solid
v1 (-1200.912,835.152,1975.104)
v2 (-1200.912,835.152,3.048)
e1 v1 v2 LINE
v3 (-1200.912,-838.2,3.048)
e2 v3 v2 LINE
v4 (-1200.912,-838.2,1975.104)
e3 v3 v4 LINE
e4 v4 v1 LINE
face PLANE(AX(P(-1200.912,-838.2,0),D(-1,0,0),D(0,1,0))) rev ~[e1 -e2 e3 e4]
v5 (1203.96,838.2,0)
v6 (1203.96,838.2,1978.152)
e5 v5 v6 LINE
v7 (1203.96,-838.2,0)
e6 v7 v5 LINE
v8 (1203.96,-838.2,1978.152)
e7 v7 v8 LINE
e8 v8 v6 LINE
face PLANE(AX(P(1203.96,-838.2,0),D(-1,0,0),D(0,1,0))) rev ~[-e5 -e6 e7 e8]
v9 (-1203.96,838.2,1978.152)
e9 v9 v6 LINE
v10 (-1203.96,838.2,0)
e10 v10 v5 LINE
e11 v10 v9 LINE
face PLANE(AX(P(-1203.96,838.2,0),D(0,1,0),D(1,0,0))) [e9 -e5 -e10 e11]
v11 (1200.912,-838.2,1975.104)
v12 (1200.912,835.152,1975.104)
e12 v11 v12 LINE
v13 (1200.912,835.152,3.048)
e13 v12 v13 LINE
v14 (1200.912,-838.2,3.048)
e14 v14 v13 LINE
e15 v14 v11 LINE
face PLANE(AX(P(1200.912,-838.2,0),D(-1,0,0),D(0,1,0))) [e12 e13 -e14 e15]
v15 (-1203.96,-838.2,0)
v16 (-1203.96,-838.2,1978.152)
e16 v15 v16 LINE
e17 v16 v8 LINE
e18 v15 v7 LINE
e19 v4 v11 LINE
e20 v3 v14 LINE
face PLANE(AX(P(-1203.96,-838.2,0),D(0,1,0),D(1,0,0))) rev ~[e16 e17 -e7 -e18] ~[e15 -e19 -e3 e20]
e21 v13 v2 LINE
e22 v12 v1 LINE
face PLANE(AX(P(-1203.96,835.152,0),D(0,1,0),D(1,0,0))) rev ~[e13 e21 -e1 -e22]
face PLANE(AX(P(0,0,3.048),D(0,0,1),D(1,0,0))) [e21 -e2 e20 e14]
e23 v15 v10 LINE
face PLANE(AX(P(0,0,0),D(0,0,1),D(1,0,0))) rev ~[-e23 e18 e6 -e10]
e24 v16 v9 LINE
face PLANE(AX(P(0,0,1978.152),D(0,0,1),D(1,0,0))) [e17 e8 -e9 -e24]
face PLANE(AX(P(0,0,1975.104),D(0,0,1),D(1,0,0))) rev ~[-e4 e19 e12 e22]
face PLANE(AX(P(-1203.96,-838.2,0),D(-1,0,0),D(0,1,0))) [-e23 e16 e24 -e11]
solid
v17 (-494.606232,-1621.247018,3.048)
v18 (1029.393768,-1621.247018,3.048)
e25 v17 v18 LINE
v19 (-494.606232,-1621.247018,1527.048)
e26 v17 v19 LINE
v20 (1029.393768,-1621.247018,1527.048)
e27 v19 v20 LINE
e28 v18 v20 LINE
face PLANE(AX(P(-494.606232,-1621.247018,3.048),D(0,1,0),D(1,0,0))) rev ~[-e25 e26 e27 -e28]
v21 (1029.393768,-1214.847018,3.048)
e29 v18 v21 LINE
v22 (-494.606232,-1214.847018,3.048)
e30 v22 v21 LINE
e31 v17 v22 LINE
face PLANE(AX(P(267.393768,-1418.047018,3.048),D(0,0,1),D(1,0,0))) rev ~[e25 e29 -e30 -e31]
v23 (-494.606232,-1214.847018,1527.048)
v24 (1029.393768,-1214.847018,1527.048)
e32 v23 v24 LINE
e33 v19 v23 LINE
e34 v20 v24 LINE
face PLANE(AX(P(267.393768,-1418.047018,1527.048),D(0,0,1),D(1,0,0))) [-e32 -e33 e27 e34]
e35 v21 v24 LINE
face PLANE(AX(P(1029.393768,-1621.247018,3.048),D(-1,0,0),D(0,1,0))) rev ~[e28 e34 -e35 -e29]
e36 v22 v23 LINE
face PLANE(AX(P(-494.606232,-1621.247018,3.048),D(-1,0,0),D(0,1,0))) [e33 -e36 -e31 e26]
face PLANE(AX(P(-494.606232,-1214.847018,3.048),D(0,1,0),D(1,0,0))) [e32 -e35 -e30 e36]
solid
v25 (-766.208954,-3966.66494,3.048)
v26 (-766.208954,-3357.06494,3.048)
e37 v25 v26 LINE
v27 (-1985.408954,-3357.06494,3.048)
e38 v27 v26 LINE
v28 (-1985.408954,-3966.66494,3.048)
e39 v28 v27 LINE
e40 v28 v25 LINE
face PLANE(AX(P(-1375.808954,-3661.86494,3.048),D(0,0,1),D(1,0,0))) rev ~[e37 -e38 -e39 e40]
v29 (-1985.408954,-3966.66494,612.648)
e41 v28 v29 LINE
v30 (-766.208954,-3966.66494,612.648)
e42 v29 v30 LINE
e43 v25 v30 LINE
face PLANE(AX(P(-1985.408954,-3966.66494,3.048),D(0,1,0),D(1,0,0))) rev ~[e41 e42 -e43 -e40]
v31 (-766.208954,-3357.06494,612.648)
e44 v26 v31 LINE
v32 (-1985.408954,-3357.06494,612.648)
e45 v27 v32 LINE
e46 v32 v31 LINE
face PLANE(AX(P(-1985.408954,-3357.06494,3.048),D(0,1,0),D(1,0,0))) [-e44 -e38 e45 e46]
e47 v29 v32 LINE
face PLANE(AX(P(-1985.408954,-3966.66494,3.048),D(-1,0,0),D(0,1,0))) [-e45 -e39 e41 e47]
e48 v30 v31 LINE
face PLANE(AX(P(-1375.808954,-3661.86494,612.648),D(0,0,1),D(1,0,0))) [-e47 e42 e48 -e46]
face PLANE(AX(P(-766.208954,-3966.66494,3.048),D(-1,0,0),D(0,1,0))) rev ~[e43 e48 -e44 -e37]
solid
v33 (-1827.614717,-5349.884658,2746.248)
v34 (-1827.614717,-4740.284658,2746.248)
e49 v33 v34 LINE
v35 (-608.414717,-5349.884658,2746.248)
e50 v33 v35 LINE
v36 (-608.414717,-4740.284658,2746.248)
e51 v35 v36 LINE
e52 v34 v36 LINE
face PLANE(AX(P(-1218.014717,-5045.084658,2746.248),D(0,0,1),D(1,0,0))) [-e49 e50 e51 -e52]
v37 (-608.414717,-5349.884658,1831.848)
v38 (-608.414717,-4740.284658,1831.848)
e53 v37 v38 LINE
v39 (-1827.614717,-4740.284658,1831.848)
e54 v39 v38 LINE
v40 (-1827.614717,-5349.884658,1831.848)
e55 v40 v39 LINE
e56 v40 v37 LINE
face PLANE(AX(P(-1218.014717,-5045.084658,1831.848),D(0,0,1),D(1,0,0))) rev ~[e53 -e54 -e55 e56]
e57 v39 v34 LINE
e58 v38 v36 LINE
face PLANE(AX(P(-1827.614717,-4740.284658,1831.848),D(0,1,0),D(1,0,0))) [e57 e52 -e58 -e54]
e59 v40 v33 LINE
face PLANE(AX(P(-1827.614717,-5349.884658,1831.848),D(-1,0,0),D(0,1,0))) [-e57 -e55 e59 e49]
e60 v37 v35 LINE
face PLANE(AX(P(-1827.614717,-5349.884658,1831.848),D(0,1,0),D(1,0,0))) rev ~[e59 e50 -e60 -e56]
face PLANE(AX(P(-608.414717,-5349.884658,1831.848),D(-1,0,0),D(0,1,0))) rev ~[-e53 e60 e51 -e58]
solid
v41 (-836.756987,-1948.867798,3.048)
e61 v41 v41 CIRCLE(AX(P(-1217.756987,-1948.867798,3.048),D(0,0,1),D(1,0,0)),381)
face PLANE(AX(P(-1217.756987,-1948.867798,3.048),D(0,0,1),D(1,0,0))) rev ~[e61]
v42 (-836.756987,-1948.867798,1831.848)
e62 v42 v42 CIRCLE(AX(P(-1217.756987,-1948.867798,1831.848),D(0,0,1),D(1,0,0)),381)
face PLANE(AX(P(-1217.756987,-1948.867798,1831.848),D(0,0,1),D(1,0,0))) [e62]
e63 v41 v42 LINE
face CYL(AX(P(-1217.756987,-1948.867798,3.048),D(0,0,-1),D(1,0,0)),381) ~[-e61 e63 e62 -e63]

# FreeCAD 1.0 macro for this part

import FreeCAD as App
import Part
import Sketcher
Q = App.Units.Quantity


def faces_at(feature, points):
    """Names of the faces that lie closest to the given points."""
    faces = feature.Shape.Faces
    near = lambda p: min(range(len(faces)), key=lambda i: faces[i].distToShape(Part.Vertex(*p))[0])
    return sorted({f"Face{near(p) + 1}" for p in points})

doc = App.newDocument("Part")
body = doc.addObject("PartDesign::Body", "Body")

# Sketch on XY plane
sketch1 = doc.addObject("Sketcher::SketchObject", "Sketch")
body.addObject(sketch1)
sketch1.AttachmentSupport = (doc.XY_Plane, [""])
sketch1.MapMode = "FlatFace"
sketch1.addGeometry(Part.LineSegment(App.Vector(-1204, 838, 0), App.Vector(-1204, -838, 0)), False)
sketch1.addGeometry(Part.LineSegment(App.Vector(-1204, -838, 0), App.Vector(1204, -838, 0)), False)
sketch1.addGeometry(Part.LineSegment(App.Vector(1204, -838, 0), App.Vector(1204, 838, 0)), False)
sketch1.addGeometry(Part.LineSegment(App.Vector(1204, 838, 0), App.Vector(-1204, 838, 0)), False)
sketch1.addConstraint(Sketcher.Constraint("Coincident", 0, 2, 1, 1))
sketch1.addConstraint(Sketcher.Constraint("Coincident", 1, 2, 2, 1))
sketch1.addConstraint(Sketcher.Constraint("Coincident", 2, 2, 3, 1))
sketch1.addConstraint(Sketcher.Constraint("Coincident", 3, 2, 0, 1))
sketch1.addConstraint(Sketcher.Constraint("Vertical", 0))
sketch1.addConstraint(Sketcher.Constraint("Horizontal", 1))
sketch1.addConstraint(Sketcher.Constraint("Vertical", 2))
sketch1.addConstraint(Sketcher.Constraint("Horizontal", 3))
sketch1.addConstraint(Sketcher.Constraint("Symmetric", 0, 2, 2, 2, -1, 1))
sketch1.addConstraint(Sketcher.Constraint("DistanceY", 0, 2, 0, 1, Q("66 in")))
sketch1.addConstraint(Sketcher.Constraint("DistanceX", 1, 1, 1, 2, Q("94.8 in")))
pad1 = doc.addObject("PartDesign::Pad", "Pad")
body.addObject(pad1)
pad1.Profile = sketch1
pad1.Length = Q("77.88 in")
doc.recompute()

thickness = doc.addObject("PartDesign::Thickness", "Thickness")
body.addObject(thickness)
thickness.Base = (pad1, faces_at(pad1, [(0, -838.2, 989.076)]))
thickness.Value = Q("0.12 in")
thickness.Reversed = True
thickness.Join = "Arc"
body2 = doc.addObject("PartDesign::Body", "Body001")

# Sketch on XY plane
sketch2 = doc.addObject("Sketcher::SketchObject", "Sketch001")
body2.addObject(sketch2)
sketch2.AttachmentSupport = (doc.getObject("XY_Plane001"), [""])
sketch2.MapMode = "FlatFace"
sketch2.AttachmentOffset = App.Placement(App.Vector(0, 0, 0.12 * 25.4), App.Rotation())
sketch2.addGeometry(Part.Circle(App.Vector(-1218, -1949, 0), App.Vector(0, 0, 1), 381), False)
sketch2.addConstraint(Sketcher.Constraint("Diameter", 0, Q("30 in")))
sketch2.addConstraint(Sketcher.Constraint("DistanceY", 0, 3, -1, 1, 1948.867798))
sketch2.addConstraint(Sketcher.Constraint("DistanceX", 0, 3, -1, 1, 1217.756987))
pad2 = doc.addObject("PartDesign::Pad", "Pad001")
body2.addObject(pad2)
pad2.Profile = sketch2
pad2.Length = Q("72 in")
body3 = doc.addObject("PartDesign::Body", "Body002")

# Sketch on XY plane
sketch3 = doc.addObject("Sketcher::SketchObject", "Sketch002")
body3.addObject(sketch3)
sketch3.AttachmentSupport = (doc.getObject("XY_Plane002"), [""])
sketch3.MapMode = "FlatFace"
sketch3.AttachmentOffset = App.Placement(App.Vector(0, 0, 0.12 * 25.4), App.Rotation())
sketch3.addGeometry(Part.LineSegment(App.Vector(-495, -1215, 0), App.Vector(-495, -1621, 0)), False)
sketch3.addGeometry(Part.LineSegment(App.Vector(-495, -1621, 0), App.Vector(1029, -1621, 0)), False)
sketch3.addGeometry(Part.LineSegment(App.Vector(1029, -1621, 0), App.Vector(1029, -1215, 0)), False)
sketch3.addGeometry(Part.LineSegment(App.Vector(1029, -1215, 0), App.Vector(-495, -1215, 0)), False)
sketch3.addConstraint(Sketcher.Constraint("Coincident", 0, 2, 1, 1))
sketch3.addConstraint(Sketcher.Constraint("Coincident", 1, 2, 2, 1))
sketch3.addConstraint(Sketcher.Constraint("Coincident", 2, 2, 3, 1))
sketch3.addConstraint(Sketcher.Constraint("Coincident", 3, 2, 0, 1))
sketch3.addConstraint(Sketcher.Constraint("Vertical", 0))
sketch3.addConstraint(Sketcher.Constraint("Horizontal", 1))
sketch3.addConstraint(Sketcher.Constraint("Vertical", 2))
sketch3.addConstraint(Sketcher.Constraint("Horizontal", 3))
sketch3.addConstraint(Sketcher.Constraint("DistanceX", 1, 1, 1, 2, Q("60 in")))
sketch3.addConstraint(Sketcher.Constraint("DistanceY", 0, 2, 0, 1, Q("16 in")))
sketch3.addConstraint(Sketcher.Constraint("DistanceX", 0, 2, -1, 1, 494.606232))
sketch3.addConstraint(Sketcher.Constraint("DistanceY", 0, 2, -1, 1, 1621.247018))
pad3 = doc.addObject("PartDesign::Pad", "Pad002")
body3.addObject(pad3)
pad3.Profile = sketch3
pad3.Length = Q("60 in")
body4 = doc.addObject("PartDesign::Body", "Body003")

# Sketch on XY plane
sketch4 = doc.addObject("Sketcher::SketchObject", "Sketch003")
body4.addObject(sketch4)
sketch4.AttachmentSupport = (doc.getObject("XY_Plane003"), [""])
sketch4.MapMode = "FlatFace"
sketch4.AttachmentOffset = App.Placement(App.Vector(0, 0, 72.12 * 25.4), App.Rotation())
sketch4.addGeometry(Part.LineSegment(App.Vector(-1828, -4740, 0), App.Vector(-1828, -5350, 0)), False)
sketch4.addGeometry(Part.LineSegment(App.Vector(-1828, -5350, 0), App.Vector(-608, -5350, 0)), False)
sketch4.addGeometry(Part.LineSegment(App.Vector(-608, -5350, 0), App.Vector(-608, -4740, 0)), False)
sketch4.addGeometry(Part.LineSegment(App.Vector(-608, -4740, 0), App.Vector(-1828, -4740, 0)), False)
sketch4.addConstraint(Sketcher.Constraint("Coincident", 0, 2, 1, 1))
sketch4.addConstraint(Sketcher.Constraint("Coincident", 1, 2, 2, 1))
sketch4.addConstraint(Sketcher.Constraint("Coincident", 2, 2, 3, 1))
sketch4.addConstraint(Sketcher.Constraint("Coincident", 3, 2, 0, 1))
sketch4.addConstraint(Sketcher.Constraint("Vertical", 0))
sketch4.addConstraint(Sketcher.Constraint("Horizontal", 1))
sketch4.addConstraint(Sketcher.Constraint("Vertical", 2))
sketch4.addConstraint(Sketcher.Constraint("Horizontal", 3))
sketch4.addConstraint(Sketcher.Constraint("DistanceX", 1, 1, 1, 2, Q("48 in")))
sketch4.addConstraint(Sketcher.Constraint("DistanceY", 0, 2, 0, 1, Q("24 in")))
sketch4.addConstraint(Sketcher.Constraint("DistanceY", 0, 2, -1, 1, 5349.884658))
sketch4.addConstraint(Sketcher.Constraint("DistanceX", 0, 2, -1, 1, 1827.614717))
pad4 = doc.addObject("PartDesign::Pad", "Pad003")
body4.addObject(pad4)
pad4.Profile = sketch4
pad4.Length = Q("36 in")
body5 = doc.addObject("PartDesign::Body", "Body004")

# Sketch on XY plane
sketch5 = doc.addObject("Sketcher::SketchObject", "Sketch004")
body5.addObject(sketch5)
sketch5.AttachmentSupport = (doc.getObject("XY_Plane004"), [""])
sketch5.MapMode = "FlatFace"
sketch5.AttachmentOffset = App.Placement(App.Vector(0, 0, 0.12 * 25.4), App.Rotation())
sketch5.addGeometry(Part.LineSegment(App.Vector(-1985, -3357, 0), App.Vector(-1985, -3967, 0)), False)
sketch5.addGeometry(Part.LineSegment(App.Vector(-1985, -3967, 0), App.Vector(-766, -3967, 0)), False)
sketch5.addGeometry(Part.LineSegment(App.Vector(-766, -3967, 0), App.Vector(-766, -3357, 0)), False)
sketch5.addGeometry(Part.LineSegment(App.Vector(-766, -3357, 0), App.Vector(-1985, -3357, 0)), False)
sketch5.addConstraint(Sketcher.Constraint("Coincident", 0, 2, 1, 1))
sketch5.addConstraint(Sketcher.Constraint("Coincident", 1, 2, 2, 1))
sketch5.addConstraint(Sketcher.Constraint("Coincident", 2, 2, 3, 1))
sketch5.addConstraint(Sketcher.Constraint("Coincident", 3, 2, 0, 1))
sketch5.addConstraint(Sketcher.Constraint("Vertical", 0))
sketch5.addConstraint(Sketcher.Constraint("Horizontal", 1))
sketch5.addConstraint(Sketcher.Constraint("Vertical", 2))
sketch5.addConstraint(Sketcher.Constraint("Horizontal", 3))
sketch5.addConstraint(Sketcher.Constraint("DistanceX", 1, 1, 1, 2, Q("48 in")))
sketch5.addConstraint(Sketcher.Constraint("DistanceY", 0, 2, 0, 1, Q("24 in")))
sketch5.addConstraint(Sketcher.Constraint("DistanceY", 0, 2, -1, 1, 3966.66494))
sketch5.addConstraint(Sketcher.Constraint("DistanceX", 0, 2, -1, 1, 1985.408954))
pad5 = doc.addObject("PartDesign::Pad", "Pad004")
body5.addObject(pad5)
pad5.Profile = sketch5
pad5.Length = Q("24 in")

doc.recompute()
